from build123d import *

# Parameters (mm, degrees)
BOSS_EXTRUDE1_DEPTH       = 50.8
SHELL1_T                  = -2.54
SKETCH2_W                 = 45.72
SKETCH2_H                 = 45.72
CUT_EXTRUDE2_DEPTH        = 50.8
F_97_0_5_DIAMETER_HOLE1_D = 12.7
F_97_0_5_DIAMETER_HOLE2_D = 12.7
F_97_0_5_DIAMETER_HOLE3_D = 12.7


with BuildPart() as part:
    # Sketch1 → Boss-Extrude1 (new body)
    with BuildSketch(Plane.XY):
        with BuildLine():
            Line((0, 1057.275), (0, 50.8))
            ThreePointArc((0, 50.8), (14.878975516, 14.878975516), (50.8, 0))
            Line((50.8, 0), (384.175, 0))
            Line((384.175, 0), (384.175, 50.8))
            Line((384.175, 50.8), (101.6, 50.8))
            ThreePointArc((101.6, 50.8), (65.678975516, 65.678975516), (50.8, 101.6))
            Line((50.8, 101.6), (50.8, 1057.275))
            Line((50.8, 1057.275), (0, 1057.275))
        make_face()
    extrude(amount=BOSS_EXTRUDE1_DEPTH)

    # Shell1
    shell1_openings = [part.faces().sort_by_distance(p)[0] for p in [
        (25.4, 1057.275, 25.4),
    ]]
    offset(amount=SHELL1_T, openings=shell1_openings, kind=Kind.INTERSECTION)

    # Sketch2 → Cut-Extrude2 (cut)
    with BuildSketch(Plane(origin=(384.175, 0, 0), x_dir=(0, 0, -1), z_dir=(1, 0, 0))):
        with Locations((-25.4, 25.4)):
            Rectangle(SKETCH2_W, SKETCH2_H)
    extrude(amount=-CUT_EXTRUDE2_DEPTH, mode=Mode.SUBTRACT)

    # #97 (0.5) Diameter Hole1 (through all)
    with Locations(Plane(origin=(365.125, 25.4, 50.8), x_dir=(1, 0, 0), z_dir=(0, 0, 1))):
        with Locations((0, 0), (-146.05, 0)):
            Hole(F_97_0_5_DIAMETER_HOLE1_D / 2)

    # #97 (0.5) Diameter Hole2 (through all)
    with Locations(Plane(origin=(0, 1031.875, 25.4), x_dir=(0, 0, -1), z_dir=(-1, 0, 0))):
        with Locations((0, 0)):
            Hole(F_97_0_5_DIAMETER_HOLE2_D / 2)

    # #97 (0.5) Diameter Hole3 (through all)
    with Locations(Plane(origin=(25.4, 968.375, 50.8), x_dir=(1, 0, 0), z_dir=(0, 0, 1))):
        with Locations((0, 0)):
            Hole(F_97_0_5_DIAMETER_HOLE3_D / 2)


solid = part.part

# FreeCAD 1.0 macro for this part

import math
import FreeCAD as App
import Part
import Sketcher
Q = App.Units.Quantity


def faces_at(feature, points):
    """Names of the faces that lie closest to the given points."""
    faces = feature.Shape.Faces
    near = lambda p: min(range(len(faces)), key=lambda i: faces[i].distToShape(Part.Vertex(*p))[0])
    return sorted({f"Face{near(p) + 1}" for p in points})

doc = App.newDocument("Part")
params = doc.addObject("Spreadsheet::Sheet", "Params")
for row, (alias, value) in enumerate([
    ("sketch1_radius", "2 in"),
    ("sketch1_width", "13.125 in"),
    ("sketch1_height", "39.625 in"),
    ("pad1_length", "2 in"),
    ("thickness_wall", "0.1 in"),
    ("sketch2_width", "1.8 in"),
    ("pocket1_length", "2 in"),
    ("sketch3_diameter", "0.5 in"),
    ("hole_diameter", "0.5 in"),
    ("sketch4_diameter", "0.5 in"),
    ("hole2_diameter", "0.5 in"),
    ("sketch5_diameter", "0.5 in"),
    ("hole3_diameter", "0.5 in"),
], start=1):
    params.set(f"A{row}", alias)
    params.set(f"B{row}", "=" + value)
    params.setAlias(f"B{row}", alias)

body = doc.addObject("PartDesign::Body", "Body")

# Sketch on XY plane
sketch1 = body.newObject("Sketcher::SketchObject", "Sketch")
sketch1.AttachmentSupport = (doc.getObject("XY_Plane"), [""])
sketch1.MapMode = "FlatFace"
sketch1.addGeometry([
    Part.LineSegment(App.Vector(0, 1057.275, 0), App.Vector(0, 50.8, 0)),  # 0
    Part.ArcOfCircle(Part.Circle(App.Vector(50.8, 50.8, 0), App.Vector(0, 0, 1), 50.8), math.radians(-180), math.radians(-90)),  # 1
    Part.LineSegment(App.Vector(50.8, 0, 0), App.Vector(384.175, 0, 0)),  # 2
    Part.LineSegment(App.Vector(384.175, 0, 0), App.Vector(384.175, 50.8, 0)),  # 3
    Part.LineSegment(App.Vector(384.175, 50.8, 0), App.Vector(101.6, 50.8, 0)),  # 4
    Part.ArcOfCircle(Part.Circle(App.Vector(101.6, 101.6, 0), App.Vector(0, 0, 1), 50.8), math.radians(-180), math.radians(-90)),  # 5
    Part.LineSegment(App.Vector(50.8, 101.6, 0), App.Vector(50.8, 1057.275, 0)),  # 6
    Part.LineSegment(App.Vector(50.8, 1057.275, 0), App.Vector(0, 1057.275, 0)),  # 7
], False)
sketch1.addConstraint([
    Sketcher.Constraint("Tangent", 0, 2, 1, 1),
    Sketcher.Constraint("Tangent", 1, 2, 2, 1),
    Sketcher.Constraint("Coincident", 2, 2, 3, 1),
    Sketcher.Constraint("Coincident", 3, 2, 4, 1),
    Sketcher.Constraint("Tangent", 4, 2, 5, 2),
    Sketcher.Constraint("Tangent", 5, 1, 6, 1),
    Sketcher.Constraint("Coincident", 6, 2, 7, 1),
    Sketcher.Constraint("Coincident", 7, 2, 0, 1),
    Sketcher.Constraint("Vertical", 0),
    Sketcher.Constraint("Horizontal", 2),
    Sketcher.Constraint("Vertical", 3),
    Sketcher.Constraint("Horizontal", 4),
    Sketcher.Constraint("Vertical", 6),
    Sketcher.Constraint("Horizontal", 7),
    Sketcher.Constraint("Equal", 1, 5),
    Sketcher.Constraint("PointOnObject", 0, 2, -2),
    Sketcher.Constraint("PointOnObject", 1, 2, -1),
    Sketcher.Constraint("Horizontal", 0, 2, 3, 2),
    Sketcher.Constraint("Vertical", 1, 2, 5, 1),
    Sketcher.Constraint("Radius", 1, Q("2 in")),
    Sketcher.Constraint("DistanceX", 2, 1, 2, 2, Q("13.125 in")),
    Sketcher.Constraint("DistanceY", 0, 2, 0, 1, Q("39.625 in")),
])
sketch1.setExpression("Constraints[19]", "Params.sketch1_radius")
sketch1.setExpression("Constraints[20]", "Params.sketch1_width")
sketch1.setExpression("Constraints[21]", "Params.sketch1_height")
pad1 = body.newObject("PartDesign::Pad", "Pad")
pad1.Profile = sketch1
pad1.setExpression("Length", "Params.pad1_length")
doc.recompute()

thickness = body.newObject("PartDesign::Thickness", "Thickness")
thickness.Base = (pad1, faces_at(pad1, [(25.4, 1057.275, 25.4)]))
thickness.setExpression("Value", "Params.thickness_wall")
thickness.Reversed = True
thickness.Join = "Intersection"

# Sketch on YZ plane
sketch2 = body.newObject("Sketcher::SketchObject", "Sketch001")
sketch2.AttachmentSupport = (doc.getObject("YZ_Plane"), [""])
sketch2.MapMode = "FlatFace"
sketch2.AttachmentOffset = App.Placement(App.Vector(0, 0, 15.125 * 25.4), App.Rotation())
sketch2.addGeometry([
    Part.LineSegment(App.Vector(48.26, 48.26, 0), App.Vector(2.54, 48.26, 0)),
    Part.LineSegment(App.Vector(2.54, 48.26, 0), App.Vector(2.54, 2.54, 0)),
    Part.LineSegment(App.Vector(2.54, 2.54, 0), App.Vector(48.26, 2.54, 0)),
    Part.LineSegment(App.Vector(48.26, 2.54, 0), App.Vector(48.26, 48.26, 0)),
], False)
sketch2.addConstraint([
    Sketcher.Constraint("Coincident", 0, 2, 1, 1),
    Sketcher.Constraint("Coincident", 1, 2, 2, 1),
    Sketcher.Constraint("Coincident", 2, 2, 3, 1),
    Sketcher.Constraint("Coincident", 3, 2, 0, 1),
    Sketcher.Constraint("Horizontal", 0),
    Sketcher.Constraint("Vertical", 1),
    Sketcher.Constraint("Horizontal", 2),
    Sketcher.Constraint("Vertical", 3),
    Sketcher.Constraint("Equal", 2, 1),
    Sketcher.Constraint("DistanceX", 0, 2, 0, 1, Q("1.8 in")),
    Sketcher.Constraint("DistanceX", -1, 1, 0, 2, Q("0.1 in")),
    Sketcher.Constraint("DistanceY", -1, 1, 0, 2, Q("1.9 in")),
])
sketch2.setExpression("Constraints[9]", "Params.sketch2_width")
pocket1 = body.newObject("PartDesign::Pocket", "Pocket")
pocket1.Profile = sketch2
pocket1.setExpression("Length", "Params.pocket1_length")

# Sketch on XY plane
sketch3 = body.newObject("Sketcher::SketchObject", "Sketch002")
sketch3.AttachmentSupport = (doc.getObject("XY_Plane"), [""])
sketch3.MapMode = "FlatFace"
sketch3.AttachmentOffset = App.Placement(App.Vector(0, 0, 2 * 25.4), App.Rotation())
sketch3.addGeometry([
    Part.Circle(App.Vector(365.125, 25.4, 0), App.Vector(0, 0, 1), 6.35),
    Part.Circle(App.Vector(219.075, 25.4, 0), App.Vector(0, 0, 1), 6.35),
], False)
sketch3.addConstraint([
    Sketcher.Constraint("Equal", 0, 1),
    Sketcher.Constraint("Horizontal", 0, 3, 1, 3),
    Sketcher.Constraint("Diameter", 0, Q("0.5 in")),
    Sketcher.Constraint("DistanceY", -1, 1, 0, 3, Q("1 in")),
    Sketcher.Constraint("DistanceX", 1, 3, 0, 3, Q("5.75 in")),
    Sketcher.Constraint("DistanceX", -1, 1, 0, 3, Q("14.375 in")),
])
sketch3.setExpression("Constraints[2]", "Params.sketch3_diameter")
doc.recompute()
hole = body.newObject("PartDesign::Hole", "Hole")
hole.Profile = sketch3
hole.ThreadType = "None"
hole.setExpression("Diameter", "Params.hole_diameter")
hole.DepthType = "ThroughAll"

# Sketch on YZ plane
sketch4 = body.newObject("Sketcher::SketchObject", "Sketch003")
sketch4.AttachmentSupport = (doc.getObject("YZ_Plane"), [""])
sketch4.MapMode = "FlatFace"
sketch4.addGeometry(Part.Circle(App.Vector(1031.875, 25.4, 0), App.Vector(0, 0, 1), 6.35), False)
sketch4.addConstraint([
    Sketcher.Constraint("Diameter", 0, Q("0.5 in")),
    Sketcher.Constraint("DistanceY", -1, 1, 0, 3, Q("1 in")),
    Sketcher.Constraint("DistanceX", -1, 1, 0, 3, Q("40.625 in")),
])
sketch4.setExpression("Constraints[0]", "Params.sketch4_diameter")
doc.recompute()
hole2 = body.newObject("PartDesign::Hole", "Hole001")
hole2.Profile = sketch4
hole2.ThreadType = "None"
hole2.setExpression("Diameter", "Params.hole2_diameter")
hole2.DepthType = "ThroughAll"
hole2.Reversed = True

# Sketch on XY plane
sketch5 = body.newObject("Sketcher::SketchObject", "Sketch004")
sketch5.AttachmentSupport = (doc.getObject("XY_Plane"), [""])
sketch5.MapMode = "FlatFace"
sketch5.AttachmentOffset = App.Placement(App.Vector(0, 0, 2 * 25.4), App.Rotation())
sketch5.addGeometry(Part.Circle(App.Vector(25.4, 968.375, 0), App.Vector(0, 0, 1), 6.35), False)
sketch5.addConstraint([
    Sketcher.Constraint("Diameter", 0, Q("0.5 in")),
    Sketcher.Constraint("DistanceX", -1, 1, 0, 3, Q("1 in")),
    Sketcher.Constraint("DistanceY", -1, 1, 0, 3, Q("38.125 in")),
])
sketch5.setExpression("Constraints[0]", "Params.sketch5_diameter")
doc.recompute()
hole3 = body.newObject("PartDesign::Hole", "Hole002")
hole3.Profile = sketch5
hole3.ThreadType = "None"
hole3.setExpression("Diameter", "Params.hole3_diameter")
hole3.DepthType = "ThroughAll"

doc.recompute()
